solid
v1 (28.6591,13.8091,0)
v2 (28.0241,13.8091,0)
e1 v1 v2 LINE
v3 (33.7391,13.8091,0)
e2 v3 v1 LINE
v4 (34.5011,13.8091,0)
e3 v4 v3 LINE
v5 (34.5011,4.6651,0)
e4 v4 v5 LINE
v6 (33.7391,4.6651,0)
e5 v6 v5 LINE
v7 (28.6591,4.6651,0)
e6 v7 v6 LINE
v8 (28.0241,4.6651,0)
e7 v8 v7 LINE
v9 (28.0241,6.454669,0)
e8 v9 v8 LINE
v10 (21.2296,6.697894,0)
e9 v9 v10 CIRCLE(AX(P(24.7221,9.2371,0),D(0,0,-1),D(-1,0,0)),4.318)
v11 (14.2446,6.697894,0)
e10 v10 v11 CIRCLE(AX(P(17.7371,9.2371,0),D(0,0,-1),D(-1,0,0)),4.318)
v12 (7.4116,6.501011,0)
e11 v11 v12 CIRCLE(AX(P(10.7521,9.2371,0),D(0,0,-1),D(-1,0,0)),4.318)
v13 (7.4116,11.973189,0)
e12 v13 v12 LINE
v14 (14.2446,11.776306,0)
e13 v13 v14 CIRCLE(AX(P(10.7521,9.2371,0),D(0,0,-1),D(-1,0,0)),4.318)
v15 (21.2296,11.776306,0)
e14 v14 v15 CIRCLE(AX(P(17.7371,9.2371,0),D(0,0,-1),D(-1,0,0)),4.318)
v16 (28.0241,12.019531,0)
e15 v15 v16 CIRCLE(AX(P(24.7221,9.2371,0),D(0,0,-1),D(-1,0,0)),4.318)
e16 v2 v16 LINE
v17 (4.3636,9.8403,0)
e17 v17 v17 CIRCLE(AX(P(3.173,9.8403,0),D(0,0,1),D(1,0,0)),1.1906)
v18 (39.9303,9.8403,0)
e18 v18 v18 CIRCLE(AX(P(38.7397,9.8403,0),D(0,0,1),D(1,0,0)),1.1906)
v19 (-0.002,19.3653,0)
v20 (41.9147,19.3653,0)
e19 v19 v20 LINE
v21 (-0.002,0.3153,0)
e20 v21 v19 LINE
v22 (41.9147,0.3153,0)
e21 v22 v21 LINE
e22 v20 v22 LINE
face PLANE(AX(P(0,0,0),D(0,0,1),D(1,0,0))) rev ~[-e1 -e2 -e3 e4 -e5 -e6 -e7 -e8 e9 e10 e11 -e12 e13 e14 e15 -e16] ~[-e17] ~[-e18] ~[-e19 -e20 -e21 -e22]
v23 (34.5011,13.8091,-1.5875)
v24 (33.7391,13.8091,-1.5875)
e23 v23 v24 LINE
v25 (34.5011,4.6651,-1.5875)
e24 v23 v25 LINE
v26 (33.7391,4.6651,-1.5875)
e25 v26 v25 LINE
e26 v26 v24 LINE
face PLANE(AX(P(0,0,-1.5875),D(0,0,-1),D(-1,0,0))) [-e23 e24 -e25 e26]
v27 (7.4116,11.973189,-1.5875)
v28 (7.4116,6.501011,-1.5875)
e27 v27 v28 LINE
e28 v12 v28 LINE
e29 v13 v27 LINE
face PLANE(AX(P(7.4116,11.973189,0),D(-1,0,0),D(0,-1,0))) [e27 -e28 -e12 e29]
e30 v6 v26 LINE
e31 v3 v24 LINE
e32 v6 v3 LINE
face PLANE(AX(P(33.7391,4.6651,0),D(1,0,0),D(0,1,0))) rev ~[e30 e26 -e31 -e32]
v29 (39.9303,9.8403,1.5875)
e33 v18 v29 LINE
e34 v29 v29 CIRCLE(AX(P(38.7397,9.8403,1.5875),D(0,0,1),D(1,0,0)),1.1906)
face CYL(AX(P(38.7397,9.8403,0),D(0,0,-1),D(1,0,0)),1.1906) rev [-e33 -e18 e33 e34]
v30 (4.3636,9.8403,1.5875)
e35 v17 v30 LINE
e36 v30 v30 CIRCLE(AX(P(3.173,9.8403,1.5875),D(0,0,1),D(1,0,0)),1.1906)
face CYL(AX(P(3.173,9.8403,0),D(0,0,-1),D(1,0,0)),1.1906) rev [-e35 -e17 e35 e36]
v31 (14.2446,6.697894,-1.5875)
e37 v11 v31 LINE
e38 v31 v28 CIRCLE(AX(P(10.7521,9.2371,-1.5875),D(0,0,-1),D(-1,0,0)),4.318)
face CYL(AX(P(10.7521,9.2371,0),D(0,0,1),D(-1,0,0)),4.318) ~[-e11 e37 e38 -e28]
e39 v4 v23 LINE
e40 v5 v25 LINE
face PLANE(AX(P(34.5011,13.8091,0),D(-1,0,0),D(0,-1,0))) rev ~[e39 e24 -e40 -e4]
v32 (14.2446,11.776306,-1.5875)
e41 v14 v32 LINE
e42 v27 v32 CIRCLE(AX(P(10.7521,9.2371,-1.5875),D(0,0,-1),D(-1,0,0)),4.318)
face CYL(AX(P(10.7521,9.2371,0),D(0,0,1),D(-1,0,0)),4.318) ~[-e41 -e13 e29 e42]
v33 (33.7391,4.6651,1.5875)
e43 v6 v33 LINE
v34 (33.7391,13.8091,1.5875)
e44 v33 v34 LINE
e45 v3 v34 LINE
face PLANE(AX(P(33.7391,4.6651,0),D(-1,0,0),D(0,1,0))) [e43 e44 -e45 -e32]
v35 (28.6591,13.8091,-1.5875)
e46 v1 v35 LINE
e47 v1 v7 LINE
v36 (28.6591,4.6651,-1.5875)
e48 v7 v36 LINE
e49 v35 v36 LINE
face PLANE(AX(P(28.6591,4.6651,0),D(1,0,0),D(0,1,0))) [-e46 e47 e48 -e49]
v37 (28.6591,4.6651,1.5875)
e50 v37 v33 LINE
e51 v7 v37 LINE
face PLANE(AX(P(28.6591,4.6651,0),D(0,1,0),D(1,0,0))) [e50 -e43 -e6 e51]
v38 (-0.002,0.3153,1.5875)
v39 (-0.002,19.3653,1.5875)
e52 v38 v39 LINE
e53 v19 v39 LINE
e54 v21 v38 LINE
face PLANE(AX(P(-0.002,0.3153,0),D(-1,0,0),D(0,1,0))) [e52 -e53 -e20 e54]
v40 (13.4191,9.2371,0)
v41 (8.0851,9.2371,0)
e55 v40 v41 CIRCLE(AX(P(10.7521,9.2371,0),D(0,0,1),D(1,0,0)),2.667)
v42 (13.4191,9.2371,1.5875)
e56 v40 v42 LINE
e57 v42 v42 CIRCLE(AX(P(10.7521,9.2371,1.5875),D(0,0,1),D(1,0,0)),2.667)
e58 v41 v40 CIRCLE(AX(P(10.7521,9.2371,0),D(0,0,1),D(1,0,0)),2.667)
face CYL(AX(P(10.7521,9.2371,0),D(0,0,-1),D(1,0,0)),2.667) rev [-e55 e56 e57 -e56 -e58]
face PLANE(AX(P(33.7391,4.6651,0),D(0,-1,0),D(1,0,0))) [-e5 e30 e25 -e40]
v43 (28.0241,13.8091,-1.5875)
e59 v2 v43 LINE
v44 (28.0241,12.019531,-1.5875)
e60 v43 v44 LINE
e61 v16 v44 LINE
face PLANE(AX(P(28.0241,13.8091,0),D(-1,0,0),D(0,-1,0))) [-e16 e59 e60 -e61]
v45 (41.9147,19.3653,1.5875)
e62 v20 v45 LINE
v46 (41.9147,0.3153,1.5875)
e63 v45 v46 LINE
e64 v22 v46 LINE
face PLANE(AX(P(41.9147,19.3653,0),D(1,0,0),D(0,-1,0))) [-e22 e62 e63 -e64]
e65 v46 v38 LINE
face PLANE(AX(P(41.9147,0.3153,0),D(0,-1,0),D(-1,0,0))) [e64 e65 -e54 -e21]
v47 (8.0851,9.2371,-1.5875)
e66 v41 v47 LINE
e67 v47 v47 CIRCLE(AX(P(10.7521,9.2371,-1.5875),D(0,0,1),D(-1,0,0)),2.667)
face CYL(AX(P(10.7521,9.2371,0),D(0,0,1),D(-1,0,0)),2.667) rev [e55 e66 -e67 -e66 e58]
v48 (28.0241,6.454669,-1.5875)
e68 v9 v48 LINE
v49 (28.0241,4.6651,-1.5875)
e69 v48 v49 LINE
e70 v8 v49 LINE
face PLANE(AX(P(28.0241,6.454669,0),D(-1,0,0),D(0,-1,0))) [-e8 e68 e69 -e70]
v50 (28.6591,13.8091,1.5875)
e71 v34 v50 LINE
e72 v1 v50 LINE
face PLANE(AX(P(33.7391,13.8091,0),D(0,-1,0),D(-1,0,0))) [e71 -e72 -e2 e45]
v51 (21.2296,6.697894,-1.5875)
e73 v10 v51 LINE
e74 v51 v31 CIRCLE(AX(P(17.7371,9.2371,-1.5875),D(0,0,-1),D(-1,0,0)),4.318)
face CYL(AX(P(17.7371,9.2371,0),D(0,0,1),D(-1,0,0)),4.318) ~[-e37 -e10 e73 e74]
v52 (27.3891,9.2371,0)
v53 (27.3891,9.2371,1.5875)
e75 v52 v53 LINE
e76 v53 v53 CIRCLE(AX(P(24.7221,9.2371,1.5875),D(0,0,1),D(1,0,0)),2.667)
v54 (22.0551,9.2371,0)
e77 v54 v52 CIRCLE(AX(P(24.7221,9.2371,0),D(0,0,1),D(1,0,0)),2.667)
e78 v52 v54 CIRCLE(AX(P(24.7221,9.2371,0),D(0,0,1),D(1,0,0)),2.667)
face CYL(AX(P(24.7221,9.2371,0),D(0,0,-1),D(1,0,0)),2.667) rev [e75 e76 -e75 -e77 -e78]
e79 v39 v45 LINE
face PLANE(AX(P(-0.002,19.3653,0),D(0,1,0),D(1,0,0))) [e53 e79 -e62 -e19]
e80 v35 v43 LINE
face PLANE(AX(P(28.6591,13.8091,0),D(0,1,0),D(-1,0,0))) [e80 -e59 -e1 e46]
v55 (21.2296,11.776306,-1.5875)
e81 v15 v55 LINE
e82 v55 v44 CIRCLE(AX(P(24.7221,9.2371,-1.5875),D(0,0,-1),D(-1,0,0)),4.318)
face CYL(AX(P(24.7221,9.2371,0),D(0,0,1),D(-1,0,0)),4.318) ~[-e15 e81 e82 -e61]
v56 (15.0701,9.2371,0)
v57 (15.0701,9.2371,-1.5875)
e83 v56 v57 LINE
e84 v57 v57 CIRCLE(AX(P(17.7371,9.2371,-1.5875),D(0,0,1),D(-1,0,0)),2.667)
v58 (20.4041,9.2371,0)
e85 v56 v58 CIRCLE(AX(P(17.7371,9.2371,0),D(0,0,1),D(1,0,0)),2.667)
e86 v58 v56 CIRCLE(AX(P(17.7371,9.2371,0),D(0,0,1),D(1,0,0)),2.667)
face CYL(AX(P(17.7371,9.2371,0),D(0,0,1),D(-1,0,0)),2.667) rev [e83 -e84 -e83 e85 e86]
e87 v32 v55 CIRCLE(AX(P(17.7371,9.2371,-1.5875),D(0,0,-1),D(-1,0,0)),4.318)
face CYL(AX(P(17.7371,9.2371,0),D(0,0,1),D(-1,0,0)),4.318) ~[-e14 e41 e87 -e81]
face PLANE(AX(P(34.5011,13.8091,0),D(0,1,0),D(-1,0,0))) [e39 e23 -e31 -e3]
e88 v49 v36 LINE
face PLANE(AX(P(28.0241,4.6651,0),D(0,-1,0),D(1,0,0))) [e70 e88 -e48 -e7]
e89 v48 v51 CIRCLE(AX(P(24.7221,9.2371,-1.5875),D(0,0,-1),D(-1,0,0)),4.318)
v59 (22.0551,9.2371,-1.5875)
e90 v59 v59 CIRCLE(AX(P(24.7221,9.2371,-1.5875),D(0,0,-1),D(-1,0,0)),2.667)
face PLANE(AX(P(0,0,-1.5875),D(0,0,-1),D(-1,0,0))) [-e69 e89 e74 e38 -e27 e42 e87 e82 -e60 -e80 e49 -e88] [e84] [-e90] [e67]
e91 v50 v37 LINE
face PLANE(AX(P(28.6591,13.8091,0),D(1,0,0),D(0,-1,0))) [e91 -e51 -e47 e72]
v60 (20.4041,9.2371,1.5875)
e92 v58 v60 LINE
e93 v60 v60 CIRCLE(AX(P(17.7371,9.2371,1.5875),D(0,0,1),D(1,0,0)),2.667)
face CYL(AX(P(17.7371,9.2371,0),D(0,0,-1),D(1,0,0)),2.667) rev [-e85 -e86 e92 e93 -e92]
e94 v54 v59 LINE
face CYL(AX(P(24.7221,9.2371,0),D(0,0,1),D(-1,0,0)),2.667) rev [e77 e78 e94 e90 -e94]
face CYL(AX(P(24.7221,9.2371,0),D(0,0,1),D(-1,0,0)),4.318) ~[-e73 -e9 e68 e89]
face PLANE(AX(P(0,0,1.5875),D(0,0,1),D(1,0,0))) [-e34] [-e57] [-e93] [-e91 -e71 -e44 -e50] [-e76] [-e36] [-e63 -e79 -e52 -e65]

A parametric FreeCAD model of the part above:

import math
import FreeCAD as App
import Part
import Sketcher

V = App.Vector
Q = App.Units.Quantity

doc = App.newDocument("Part")
body = doc.addObject("PartDesign::Body", "Body")

sketch1 = doc.addObject("Sketcher::SketchObject", "Sketch")
body.addObject(sketch1)
sketch1.AttachmentSupport = (doc.XY_Plane, [""])
sketch1.MapMode = "FlatFace"
sketch1.addGeometry(Part.LineSegment(V(41.9, 19.4, 0), V(0, 19.4, 0)), False)
sketch1.addGeometry(Part.LineSegment(V(0, 19.4, 0), V(0, 0.3, 0)), False)
sketch1.addGeometry(Part.LineSegment(V(0, 0.3, 0), V(41.9, 0.3, 0)), False)
sketch1.addGeometry(Part.LineSegment(V(41.9, 0.3, 0), V(41.9, 19.4, 0)), False)
sketch1.addGeometry(Part.Circle(V(3.2, 9.8, 0), V(0, 0, 1), 1.2), False)
sketch1.addGeometry(Part.Circle(V(10.8, 9.2, 0), V(0, 0, 1), 2.7), False)
sketch1.addGeometry(Part.Circle(V(17.7, 9.2, 0), V(0, 0, 1), 2.7), False)
sketch1.addGeometry(Part.Circle(V(24.7, 9.2, 0), V(0, 0, 1), 2.7), False)
sketch1.addGeometry(Part.LineSegment(V(28.7, 13.8, 0), V(33.7, 13.8, 0)), False)
sketch1.addGeometry(Part.LineSegment(V(33.7, 13.8, 0), V(33.7, 4.7, 0)), False)
sketch1.addGeometry(Part.LineSegment(V(33.7, 4.7, 0), V(28.7, 4.7, 0)), False)
sketch1.addGeometry(Part.LineSegment(V(28.7, 4.7, 0), V(28.7, 13.8, 0)), False)
sketch1.addGeometry(Part.Circle(V(38.7, 9.8, 0), V(0, 0, 1), 1.2), False)
sketch1.addConstraint(Sketcher.Constraint("Coincident", 0, 2, 1, 1))
sketch1.addConstraint(Sketcher.Constraint("Coincident", 1, 2, 2, 1))
sketch1.addConstraint(Sketcher.Constraint("Coincident", 2, 2, 3, 1))
sketch1.addConstraint(Sketcher.Constraint("Coincident", 3, 2, 0, 1))
sketch1.addConstraint(Sketcher.Constraint("Coincident", 8, 2, 9, 1))
sketch1.addConstraint(Sketcher.Constraint("Coincident", 9, 2, 10, 1))
sketch1.addConstraint(Sketcher.Constraint("Coincident", 10, 2, 11, 1))
sketch1.addConstraint(Sketcher.Constraint("Coincident", 11, 2, 8, 1))
sketch1.addConstraint(Sketcher.Constraint("Horizontal", 0))
sketch1.addConstraint(Sketcher.Constraint("Vertical", 1))
sketch1.addConstraint(Sketcher.Constraint("Horizontal", 2))
sketch1.addConstraint(Sketcher.Constraint("Vertical", 3))
sketch1.addConstraint(Sketcher.Constraint("Horizontal", 8))
sketch1.addConstraint(Sketcher.Constraint("Vertical", 9))
sketch1.addConstraint(Sketcher.Constraint("Horizontal", 10))
sketch1.addConstraint(Sketcher.Constraint("Vertical", 11))
sketch1.addConstraint(Sketcher.Constraint("Equal", 5, 6))
sketch1.addConstraint(Sketcher.Constraint("Equal", 6, 7))
sketch1.addConstraint(Sketcher.Constraint("Equal", 4, 12))
sketch1.addConstraint(Sketcher.Constraint("Horizontal", 5, 3, 6, 3))
sketch1.addConstraint(Sketcher.Constraint("Horizontal", 6, 3, 7, 3))
sketch1.addConstraint(Sketcher.Constraint("Horizontal", 4, 3, 12, 3))
sketch1.addConstraint(Sketcher.Constraint("Diameter", 5, Q("0.21 in")))
sketch1.addConstraint(Sketcher.Constraint("Diameter", 4, Q("0.093748 in")))
sketch1.addConstraint(Sketcher.Constraint("DistanceX", 8, 1, 8, 2, Q("0.2 in")))
sketch1.addConstraint(Sketcher.Constraint("DistanceY", 1, 2, 1, 1, Q("0.75 in")))
sketch1.addConstraint(Sketcher.Constraint("DistanceY", 9, 2, 9, 1, Q("0.36 in")))
sketch1.addConstraint(Sketcher.Constraint("DistanceX", 5, 3, 6, 3, Q("0.275 in")))
sketch1.addConstraint(Sketcher.Constraint("DistanceX", 6, 3, 7, 3, Q("0.275 in")))
sketch1.addConstraint(Sketcher.Constraint("DistanceX", 0, 2, 4, 3, Q("0.125 in")))
sketch1.addConstraint(Sketcher.Constraint("DistanceY", 4, 3, 0, 2, Q("0.375 in")))
sketch1.addConstraint(Sketcher.Constraint("DistanceX", 12, 3, 2, 2, Q("0.125 in")))
sketch1.addConstraint(Sketcher.Constraint("DistanceX", 7, 3, 10, 2, Q("0.155 in")))
sketch1.addConstraint(Sketcher.Constraint("DistanceX", 0, 2, 0, 1, 41.9167))
sketch1.addConstraint(Sketcher.Constraint("DistanceY", 5, 3, 4, 3, 0.6032))
sketch1.addConstraint(Sketcher.Constraint("DistanceY", 7, 3, 8, 2, Q("0.18 in")))
sketch1.addConstraint(Sketcher.Constraint("DistanceX", -1, 1, 5, 3, Q("0.4233 in")))
sketch1.addConstraint(Sketcher.Constraint("DistanceX", 4, 3, 5, 3, Q("0.2984 in")))
sketch1.addConstraint(Sketcher.Constraint("DistanceY", -1, 1, 4, 3, 9.8403))
pad1 = doc.addObject("PartDesign::Pad", "Pad")
body.addObject(pad1)
pad1.Profile = sketch1
pad1.Length = Q("0.0625 in")

sketch2 = doc.addObject("Sketcher::SketchObject", "Sketch001")
body.addObject(sketch2)
sketch2.AttachmentSupport = (doc.XY_Plane, [""])
sketch2.MapMode = "FlatFace"
sketch2.addGeometry(Part.ArcOfCircle(Part.Circle(V(24.7, 9.2, 0), V(0, 0, 1), 4.3), math.radians(-144), math.radians(-40)), False)
sketch2.addGeometry(Part.ArcOfCircle(Part.Circle(V(17.7, 9.2, 0), V(0, 0, 1), 4.3), math.radians(-144), math.radians(-36)), False)
sketch2.addGeometry(Part.ArcOfCircle(Part.Circle(V(10.8, 9.2, 0), V(0, 0, 1), 4.3), math.radians(-141), math.radians(-36)), False)
sketch2.addGeometry(Part.LineSegment(V(7.4, 6.5, 0), V(7.4, 12, 0)), False)
sketch2.addGeometry(Part.ArcOfCircle(Part.Circle(V(10.8, 9.2, 0), V(0, 0, 1), 4.3), math.radians(36), math.radians(141)), False)
sketch2.addGeometry(Part.ArcOfCircle(Part.Circle(V(17.7, 9.2, 0), V(0, 0, 1), 4.3), math.radians(36), math.radians(144)), False)
sketch2.addGeometry(Part.ArcOfCircle(Part.Circle(V(24.7, 9.2, 0), V(0, 0, 1), 4.3), math.radians(40), math.radians(144)), False)
sketch2.addGeometry(Part.LineSegment(V(28, 12, 0), V(28, 13.8, 0)), False)
sketch2.addGeometry(Part.LineSegment(V(28, 13.8, 0), V(28.7, 13.8, 0)), False)
sketch2.addGeometry(Part.LineSegment(V(28.7, 13.8, 0), V(28.7, 4.7, 0)), False)
sketch2.addGeometry(Part.LineSegment(V(28.7, 4.7, 0), V(28, 4.7, 0)), False)
sketch2.addGeometry(Part.LineSegment(V(28, 4.7, 0), V(28, 6.5, 0)), False)
sketch2.addGeometry(Part.Circle(V(24.7, 9.2, 0), V(0, 0, 1), 2.7), False)
sketch2.addGeometry(Part.Circle(V(17.7, 9.2, 0), V(0, 0, 1), 2.7), False)
sketch2.addGeometry(Part.Circle(V(10.8, 9.2, 0), V(0, 0, 1), 2.7), False)
sketch2.addGeometry(Part.LineSegment(V(33.7, 4.7, 0), V(33.7, 13.8, 0)), False)
sketch2.addGeometry(Part.LineSegment(V(33.7, 13.8, 0), V(34.5, 13.8, 0)), False)
sketch2.addGeometry(Part.LineSegment(V(34.5, 13.8, 0), V(34.5, 4.7, 0)), False)
sketch2.addGeometry(Part.LineSegment(V(34.5, 4.7, 0), V(33.7, 4.7, 0)), False)
sketch2.addConstraint(Sketcher.Constraint("Coincident", 0, 1, 1, 2))
sketch2.addConstraint(Sketcher.Constraint("Coincident", 1, 1, 2, 2))
sketch2.addConstraint(Sketcher.Constraint("Coincident", 2, 1, 3, 1))
sketch2.addConstraint(Sketcher.Constraint("Coincident", 3, 2, 4, 2))
sketch2.addConstraint(Sketcher.Constraint("Coincident", 4, 1, 5, 2))
sketch2.addConstraint(Sketcher.Constraint("Coincident", 5, 1, 6, 2))
sketch2.addConstraint(Sketcher.Constraint("Coincident", 6, 1, 7, 1))
sketch2.addConstraint(Sketcher.Constraint("Coincident", 7, 2, 8, 1))
sketch2.addConstraint(Sketcher.Constraint("Coincident", 8, 2, 9, 1))
sketch2.addConstraint(Sketcher.Constraint("Coincident", 9, 2, 10, 1))
sketch2.addConstraint(Sketcher.Constraint("Coincident", 10, 2, 11, 1))
sketch2.addConstraint(Sketcher.Constraint("Coincident", 11, 2, 0, 2))
sketch2.addConstraint(Sketcher.Constraint("Coincident", 15, 2, 16, 1))
sketch2.addConstraint(Sketcher.Constraint("Coincident", 16, 2, 17, 1))
sketch2.addConstraint(Sketcher.Constraint("Coincident", 17, 2, 18, 1))
sketch2.addConstraint(Sketcher.Constraint("Coincident", 18, 2, 15, 1))
sketch2.addConstraint(Sketcher.Constraint("Vertical", 3))
sketch2.addConstraint(Sketcher.Constraint("Vertical", 7))
sketch2.addConstraint(Sketcher.Constraint("Horizontal", 8))
sketch2.addConstraint(Sketcher.Constraint("Vertical", 9))
sketch2.addConstraint(Sketcher.Constraint("Horizontal", 10))
sketch2.addConstraint(Sketcher.Constraint("Vertical", 11))
sketch2.addConstraint(Sketcher.Constraint("Vertical", 15))
sketch2.addConstraint(Sketcher.Constraint("Horizontal", 16))
sketch2.addConstraint(Sketcher.Constraint("Vertical", 17))
sketch2.addConstraint(Sketcher.Constraint("Horizontal", 18))
sketch2.addConstraint(Sketcher.Constraint("Coincident", 4, 3, 2, 3))
sketch2.addConstraint(Sketcher.Constraint("Coincident", 5, 3, 1, 3))
sketch2.addConstraint(Sketcher.Constraint("Coincident", 6, 3, 0, 3))
sketch2.addConstraint(Sketcher.Constraint("Coincident", 12, 3, 0, 3))
sketch2.addConstraint(Sketcher.Constraint("Coincident", 13, 3, 1, 3))
sketch2.addConstraint(Sketcher.Constraint("Coincident", 14, 3, 2, 3))
sketch2.addConstraint(Sketcher.Constraint("Equal", 0, 1))
sketch2.addConstraint(Sketcher.Constraint("Equal", 1, 2))
sketch2.addConstraint(Sketcher.Constraint("Equal", 2, 4))
sketch2.addConstraint(Sketcher.Constraint("Equal", 4, 5))
sketch2.addConstraint(Sketcher.Constraint("Equal", 5, 6))
sketch2.addConstraint(Sketcher.Constraint("Equal", 12, 13))
sketch2.addConstraint(Sketcher.Constraint("Equal", 13, 14))
sketch2.addConstraint(Sketcher.Constraint("Horizontal", 0, 3, 1, 3))
sketch2.addConstraint(Sketcher.Constraint("Horizontal", 1, 3, 2, 3))
sketch2.addConstraint(Sketcher.Constraint("Horizontal", 0, 1, 1, 1))
sketch2.addConstraint(Sketcher.Constraint("Horizontal", 8, 2, 15, 2))
sketch2.addConstraint(Sketcher.Constraint("Horizontal", 10, 2, 17, 2))
sketch2.addConstraint(Sketcher.Constraint("Vertical", 7, 2, 10, 2))
sketch2.addConstraint(Sketcher.Constraint("Equal", 7, 11))
sketch2.addConstraint(Sketcher.Constraint("Diameter", 12, Q("0.21 in")))
sketch2.addConstraint(Sketcher.Constraint("DistanceX", 8, 1, 8, 2, Q("0.025 in")))
sketch2.addConstraint(Sketcher.Constraint("Radius", 0, Q("0.17 in")))
sketch2.addConstraint(Sketcher.Constraint("DistanceX", 16, 1, 16, 2, Q("0.03 in")))
sketch2.addConstraint(Sketcher.Constraint("DistanceY", 9, 2, 9, 1, Q("0.36 in")))
sketch2.addConstraint(Sketcher.Constraint("DistanceX", 8, 2, 15, 2, Q("0.2 in")))
sketch2.addConstraint(Sketcher.Constraint("DistanceX", 2, 3, 0, 3, Q("0.55 in")))
sketch2.addConstraint(Sketcher.Constraint("DistanceX", 0, 3, 6, 1, Q("0.13 in")))
sketch2.addConstraint(Sketcher.Constraint("DistanceY", 3, 1, 3, 2, 5.4722))
sketch2.addConstraint(Sketcher.Constraint("DistanceX", -1, 1, 0, 3, Q("0.9733 in")))
sketch2.addConstraint(Sketcher.Constraint("DistanceY", -1, 1, 0, 1, Q("0.2637 in")))
pad2 = doc.addObject("PartDesign::Pad", "Pad001")
body.addObject(pad2)
pad2.Profile = sketch2
pad2.Length = Q("0.0625 in")
pad2.Reversed = True

doc.recompute()
